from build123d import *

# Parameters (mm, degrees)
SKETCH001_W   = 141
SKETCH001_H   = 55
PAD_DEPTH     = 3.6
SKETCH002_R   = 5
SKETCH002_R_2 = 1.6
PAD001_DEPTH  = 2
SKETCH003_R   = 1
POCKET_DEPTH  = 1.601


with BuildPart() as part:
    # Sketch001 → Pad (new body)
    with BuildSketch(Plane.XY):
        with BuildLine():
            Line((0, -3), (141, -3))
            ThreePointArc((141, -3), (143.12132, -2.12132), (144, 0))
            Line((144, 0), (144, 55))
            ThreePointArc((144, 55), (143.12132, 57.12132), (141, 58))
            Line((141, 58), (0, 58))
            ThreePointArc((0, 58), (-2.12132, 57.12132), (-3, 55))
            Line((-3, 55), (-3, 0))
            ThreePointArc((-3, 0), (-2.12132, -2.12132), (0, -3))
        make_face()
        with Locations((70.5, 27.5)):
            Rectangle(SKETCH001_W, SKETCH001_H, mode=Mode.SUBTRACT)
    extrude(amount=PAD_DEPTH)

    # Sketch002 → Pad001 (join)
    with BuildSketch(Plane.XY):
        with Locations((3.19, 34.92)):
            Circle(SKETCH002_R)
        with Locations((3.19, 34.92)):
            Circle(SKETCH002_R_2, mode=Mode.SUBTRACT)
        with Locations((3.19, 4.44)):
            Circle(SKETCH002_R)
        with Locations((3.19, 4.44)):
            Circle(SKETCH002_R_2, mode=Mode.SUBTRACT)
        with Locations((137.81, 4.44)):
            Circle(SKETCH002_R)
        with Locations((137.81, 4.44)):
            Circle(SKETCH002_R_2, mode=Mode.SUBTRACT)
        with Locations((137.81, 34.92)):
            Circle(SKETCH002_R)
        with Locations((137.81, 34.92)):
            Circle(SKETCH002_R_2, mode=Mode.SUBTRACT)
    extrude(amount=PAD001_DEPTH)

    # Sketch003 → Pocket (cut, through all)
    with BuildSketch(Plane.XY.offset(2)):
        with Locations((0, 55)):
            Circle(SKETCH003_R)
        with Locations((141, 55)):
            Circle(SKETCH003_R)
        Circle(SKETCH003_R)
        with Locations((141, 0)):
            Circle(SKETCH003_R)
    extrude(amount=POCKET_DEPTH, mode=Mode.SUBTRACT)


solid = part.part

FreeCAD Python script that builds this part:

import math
import FreeCAD as App
import Part
import Sketcher
from FreeCAD import Vector
Q = App.Units.Quantity


def add_polygon(sketch, points):
    """Adds a closed chain of lines whose ends are joined by coincident constraints."""
    first, n = sketch.GeometryCount, len(points)
    for a, b in zip(points, points[1:] + points[:1]):
        sketch.addGeometry(Part.LineSegment(App.Vector(*a, 0), App.Vector(*b, 0)), False)
    for i in range(n):
        sketch.addConstraint(Sketcher.Constraint("Coincident", first + i, 2, first + (i + 1) % n, 1))

doc = App.newDocument("Part")
body = doc.addObject("PartDesign::Body", "Body")

# Sketch on XY plane
sketch1 = doc.addObject("Sketcher::SketchObject", "Sketch")
body.addObject(sketch1)
sketch1.AttachmentSupport = (doc.XY_Plane, [""])
sketch1.MapMode = "FlatFace"
sketch1.addGeometry(Part.LineSegment(Vector(0, -3, 0), Vector(141, -3, 0)), False)  # 0
sketch1.addGeometry(Part.ArcOfCircle(Part.Circle(Vector(141, 0, 0), Vector(0, 0, 1), 3), math.radians(-90), math.radians(0)), False)  # 1
sketch1.addGeometry(Part.LineSegment(Vector(144, 0, 0), Vector(144, 55, 0)), False)  # 2
sketch1.addGeometry(Part.ArcOfCircle(Part.Circle(Vector(141, 55, 0), Vector(0, 0, 1), 3), math.radians(0), math.radians(90)), False)  # 3
sketch1.addGeometry(Part.LineSegment(Vector(141, 58, 0), Vector(0, 58, 0)), False)  # 4
sketch1.addGeometry(Part.ArcOfCircle(Part.Circle(Vector(0, 55, 0), Vector(0, 0, 1), 3), math.radians(90), math.radians(180)), False)  # 5
sketch1.addGeometry(Part.LineSegment(Vector(-3, 55, 0), Vector(-3, 0, 0)), False)  # 6
sketch1.addGeometry(Part.ArcOfCircle(Part.Circle(Vector(0, 0, 0), Vector(0, 0, 1), 3), math.radians(-180), math.radians(-90)), False)  # 7
add_polygon(sketch1, [(141, 0), (0, 0), (0, 55), (141, 55)])  # lines 8-11
sketch1.addConstraint(Sketcher.Constraint("Tangent", 0, 2, 1, 1))
sketch1.addConstraint(Sketcher.Constraint("Tangent", 1, 2, 2, 1))
sketch1.addConstraint(Sketcher.Constraint("Tangent", 2, 2, 3, 1))
sketch1.addConstraint(Sketcher.Constraint("Tangent", 3, 2, 4, 1))
sketch1.addConstraint(Sketcher.Constraint("Tangent", 4, 2, 5, 1))
sketch1.addConstraint(Sketcher.Constraint("Tangent", 5, 2, 6, 1))
sketch1.addConstraint(Sketcher.Constraint("Tangent", 6, 2, 7, 1))
sketch1.addConstraint(Sketcher.Constraint("Tangent", 7, 2, 0, 1))
sketch1.addConstraint(Sketcher.Constraint("Horizontal", 0))
sketch1.addConstraint(Sketcher.Constraint("Vertical", 2))
sketch1.addConstraint(Sketcher.Constraint("Horizontal", 4))
sketch1.addConstraint(Sketcher.Constraint("Vertical", 6))
sketch1.addConstraint(Sketcher.Constraint("Horizontal", 8))
sketch1.addConstraint(Sketcher.Constraint("Vertical", 9))
sketch1.addConstraint(Sketcher.Constraint("Horizontal", 10))
sketch1.addConstraint(Sketcher.Constraint("Vertical", 11))
sketch1.addConstraint(Sketcher.Constraint("Coincident", 7, 3, -1, 1))
sketch1.addConstraint(Sketcher.Constraint("Coincident", 8, 2, -1, 1))
sketch1.addConstraint(Sketcher.Constraint("Coincident", 9, 2, 5, 3))
sketch1.addConstraint(Sketcher.Constraint("Coincident", 10, 2, 3, 3))
sketch1.addConstraint(Sketcher.Constraint("Equal", 1, 3))
sketch1.addConstraint(Sketcher.Constraint("Radius", 1, Q("3.000001 mm")))
sketch1.addConstraint(Sketcher.Constraint("DistanceX", 0, 1, 0, 2, Q("141 mm")))
sketch1.addConstraint(Sketcher.Constraint("DistanceY", 2, 1, 2, 2, Q("55 mm")))
pad1 = doc.addObject("PartDesign::Pad", "Pad")
body.addObject(pad1)
pad1.Profile = sketch1
pad1.Length = 3.6

# Sketch on XY plane
sketch2 = doc.addObject("Sketcher::SketchObject", "Sketch001")
body.addObject(sketch2)
sketch2.AttachmentSupport = (doc.XY_Plane, [""])
sketch2.MapMode = "FlatFace"
sketch2.addGeometry(Part.Circle(Vector(3.2, 34.9, 0), Vector(0, 0, 1), 5), False)
sketch2.addGeometry(Part.Circle(Vector(3.2, 34.9, 0), Vector(0, 0, 1), 1.6), False)
sketch2.addGeometry(Part.Circle(Vector(3.2, 4.4, 0), Vector(0, 0, 1), 5), False)
sketch2.addGeometry(Part.Circle(Vector(3.2, 4.4, 0), Vector(0, 0, 1), 1.6), False)
sketch2.addGeometry(Part.Circle(Vector(137.8, 4.4, 0), Vector(0, 0, 1), 5), False)
sketch2.addGeometry(Part.Circle(Vector(137.8, 4.4, 0), Vector(0, 0, 1), 1.6), False)
sketch2.addGeometry(Part.Circle(Vector(137.8, 34.9, 0), Vector(0, 0, 1), 5), False)
sketch2.addGeometry(Part.Circle(Vector(137.8, 34.9, 0), Vector(0, 0, 1), 1.6), False)
sketch2.addConstraint(Sketcher.Constraint("Coincident", 1, 3, 0, 3))
sketch2.addConstraint(Sketcher.Constraint("Coincident", 3, 3, 2, 3))
sketch2.addConstraint(Sketcher.Constraint("Coincident", 5, 3, 4, 3))
sketch2.addConstraint(Sketcher.Constraint("Coincident", 7, 3, 6, 3))
sketch2.addConstraint(Sketcher.Constraint("Equal", 0, 2))
sketch2.addConstraint(Sketcher.Constraint("Equal", 1, 3))
sketch2.addConstraint(Sketcher.Constraint("Equal", 2, 4))
sketch2.addConstraint(Sketcher.Constraint("Equal", 3, 5))
sketch2.addConstraint(Sketcher.Constraint("Equal", 4, 6))
sketch2.addConstraint(Sketcher.Constraint("Equal", 5, 7))
sketch2.addConstraint(Sketcher.Constraint("Horizontal", 3, 3, 4, 3))
sketch2.addConstraint(Sketcher.Constraint("Horizontal", 1, 3, 6, 3))
sketch2.addConstraint(Sketcher.Constraint("Vertical", 1, 3, 2, 3))
sketch2.addConstraint(Sketcher.Constraint("Vertical", 5, 3, 6, 3))
sketch2.addConstraint(Sketcher.Constraint("Diameter", 0, Q("10 mm")))
sketch2.addConstraint(Sketcher.Constraint("Diameter", 1, Q("3.2 mm")))
sketch2.addConstraint(Sketcher.Constraint("DistanceX", -1, 1, 0, 3, Q("3.19 mm")))
sketch2.addConstraint(Sketcher.Constraint("DistanceY", -1, 1, 0, 3, Q("34.92 mm")))
sketch2.addConstraint(Sketcher.Constraint("DistanceY", -1, 1, 2, 3, Q("4.44 mm")))
sketch2.addConstraint(Sketcher.Constraint("DistanceX", -1, 1, 4, 3, Q("137.81 mm")))
pad2 = doc.addObject("PartDesign::Pad", "Pad001")
body.addObject(pad2)
pad2.Profile = sketch2
pad2.Length = 2

# Sketch on XY plane
sketch3 = doc.addObject("Sketcher::SketchObject", "Sketch002")
body.addObject(sketch3)
sketch3.AttachmentSupport = (doc.XY_Plane, [""])
sketch3.MapMode = "FlatFace"
sketch3.AttachmentOffset = App.Placement(Vector(0, 0, 2), App.Rotation())
sketch3.addGeometry(Part.Circle(Vector(0, 55, 0), Vector(0, 0, 1), 1), False)
sketch3.addGeometry(Part.Circle(Vector(141, 55, 0), Vector(0, 0, 1), 1), False)
sketch3.addGeometry(Part.Circle(Vector(0, 0, 0), Vector(0, 0, 1), 1), False)
sketch3.addGeometry(Part.Circle(Vector(141, 0, 0), Vector(0, 0, 1), 1), False)
sketch3.addConstraint(Sketcher.Constraint("Coincident", 2, 3, -1, 1))
sketch3.addConstraint(Sketcher.Constraint("Equal", 0, 1))
sketch3.addConstraint(Sketcher.Constraint("Equal", 1, 2))
sketch3.addConstraint(Sketcher.Constraint("Equal", 2, 3))
sketch3.addConstraint(Sketcher.Constraint("PointOnObject", 0, 3, -2))
sketch3.addConstraint(Sketcher.Constraint("PointOnObject", 3, 3, -1))
sketch3.addConstraint(Sketcher.Constraint("Horizontal", 0, 3, 1, 3))
sketch3.addConstraint(Sketcher.Constraint("Vertical", 1, 3, 3, 3))
sketch3.addConstraint(Sketcher.Constraint("Diameter", 0, Q("2 mm")))
sketch3.addConstraint(Sketcher.Constraint("DistanceY", -1, 1, 0, 3, Q("55 mm")))
sketch3.addConstraint(Sketcher.Constraint("DistanceX", -1, 1, 1, 3, Q("141 mm")))
pocket1 = doc.addObject("PartDesign::Pocket", "Pocket")
body.addObject(pocket1)
pocket1.Profile = sketch3
pocket1.Type = "ThroughAll"
pocket1.Reversed = True

doc.recompute()
